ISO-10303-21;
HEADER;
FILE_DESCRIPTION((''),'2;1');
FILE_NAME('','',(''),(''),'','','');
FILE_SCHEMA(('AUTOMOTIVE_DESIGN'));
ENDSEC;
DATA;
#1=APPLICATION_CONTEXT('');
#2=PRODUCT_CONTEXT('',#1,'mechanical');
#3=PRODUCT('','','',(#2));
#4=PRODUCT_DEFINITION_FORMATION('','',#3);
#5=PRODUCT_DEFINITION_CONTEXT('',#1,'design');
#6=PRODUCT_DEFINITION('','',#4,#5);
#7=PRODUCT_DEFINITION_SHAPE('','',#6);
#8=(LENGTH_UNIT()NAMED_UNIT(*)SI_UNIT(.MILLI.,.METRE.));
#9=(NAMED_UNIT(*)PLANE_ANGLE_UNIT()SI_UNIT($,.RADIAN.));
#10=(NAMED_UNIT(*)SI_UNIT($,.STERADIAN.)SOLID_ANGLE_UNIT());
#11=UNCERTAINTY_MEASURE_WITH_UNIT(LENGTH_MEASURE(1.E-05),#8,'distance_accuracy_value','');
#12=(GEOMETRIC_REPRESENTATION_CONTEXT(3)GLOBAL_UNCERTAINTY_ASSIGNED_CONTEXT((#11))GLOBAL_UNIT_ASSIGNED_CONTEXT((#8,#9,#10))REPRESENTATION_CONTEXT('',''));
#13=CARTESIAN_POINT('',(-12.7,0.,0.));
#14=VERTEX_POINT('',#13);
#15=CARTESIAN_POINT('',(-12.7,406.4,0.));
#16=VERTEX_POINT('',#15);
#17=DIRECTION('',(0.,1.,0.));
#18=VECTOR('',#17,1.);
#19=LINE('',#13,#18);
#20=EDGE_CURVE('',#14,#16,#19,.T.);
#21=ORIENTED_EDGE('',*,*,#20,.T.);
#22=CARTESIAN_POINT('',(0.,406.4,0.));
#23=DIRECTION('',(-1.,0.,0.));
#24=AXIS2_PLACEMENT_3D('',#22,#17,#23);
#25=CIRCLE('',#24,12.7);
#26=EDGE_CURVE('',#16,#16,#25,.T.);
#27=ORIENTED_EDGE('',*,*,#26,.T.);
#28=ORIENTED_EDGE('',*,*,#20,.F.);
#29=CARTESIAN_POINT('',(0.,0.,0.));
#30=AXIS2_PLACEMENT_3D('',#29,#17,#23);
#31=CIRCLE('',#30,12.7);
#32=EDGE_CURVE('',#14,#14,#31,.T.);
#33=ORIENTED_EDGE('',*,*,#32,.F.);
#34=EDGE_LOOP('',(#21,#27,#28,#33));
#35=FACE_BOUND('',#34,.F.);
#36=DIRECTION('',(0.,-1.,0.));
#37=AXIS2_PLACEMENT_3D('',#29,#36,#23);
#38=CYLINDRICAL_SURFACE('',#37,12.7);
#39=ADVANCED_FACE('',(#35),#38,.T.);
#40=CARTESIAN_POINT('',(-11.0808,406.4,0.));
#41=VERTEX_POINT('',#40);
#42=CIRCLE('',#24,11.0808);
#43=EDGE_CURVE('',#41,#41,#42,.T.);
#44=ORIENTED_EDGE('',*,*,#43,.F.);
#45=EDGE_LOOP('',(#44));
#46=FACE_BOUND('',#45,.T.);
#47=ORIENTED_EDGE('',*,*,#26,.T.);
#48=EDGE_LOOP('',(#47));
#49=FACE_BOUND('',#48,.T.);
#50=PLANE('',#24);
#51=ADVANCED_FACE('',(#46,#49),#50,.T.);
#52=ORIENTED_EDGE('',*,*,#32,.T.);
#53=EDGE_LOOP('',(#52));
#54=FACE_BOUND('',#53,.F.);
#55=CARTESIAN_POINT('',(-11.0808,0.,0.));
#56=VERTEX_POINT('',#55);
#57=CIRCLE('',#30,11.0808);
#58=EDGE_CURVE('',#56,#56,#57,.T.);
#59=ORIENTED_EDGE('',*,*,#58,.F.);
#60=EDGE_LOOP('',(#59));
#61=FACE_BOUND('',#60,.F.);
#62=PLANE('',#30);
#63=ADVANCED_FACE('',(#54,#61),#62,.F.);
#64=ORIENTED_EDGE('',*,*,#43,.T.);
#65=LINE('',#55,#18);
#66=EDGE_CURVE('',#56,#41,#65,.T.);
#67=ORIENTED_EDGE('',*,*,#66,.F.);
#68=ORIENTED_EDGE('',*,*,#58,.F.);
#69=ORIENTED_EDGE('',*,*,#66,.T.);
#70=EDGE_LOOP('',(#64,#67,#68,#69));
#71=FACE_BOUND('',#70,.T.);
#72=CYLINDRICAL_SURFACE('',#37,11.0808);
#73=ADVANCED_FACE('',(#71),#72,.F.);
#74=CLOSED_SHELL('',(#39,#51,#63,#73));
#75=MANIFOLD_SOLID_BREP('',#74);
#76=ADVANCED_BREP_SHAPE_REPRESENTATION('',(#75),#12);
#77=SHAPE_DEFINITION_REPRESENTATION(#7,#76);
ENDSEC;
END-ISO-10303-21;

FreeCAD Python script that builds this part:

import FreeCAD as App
import Part
import Sketcher
from FreeCAD import Vector
Q = App.Units.Quantity

doc = App.newDocument("Part")
params = doc.addObject("Spreadsheet::Sheet", "Params")
for row, (alias, value) in enumerate([
    ("sketch1_diameter", "1 in"),
    ("pad1_length", "16 in"),
], start=1):
    params.set(f"A{row}", alias)
    params.set(f"B{row}", "=" + value)
    params.setAlias(f"B{row}", alias)

body = doc.addObject("PartDesign::Body", "Body")

sketch1 = doc.addObject("Sketcher::SketchObject", "Sketch")
body.addObject(sketch1)
sketch1.AttachmentSupport = (doc.XZ_Plane, [""])
sketch1.MapMode = "FlatFace"
sketch1.addGeometry([
    Part.Circle(Vector(0, 0, 0), Vector(0, 0, 1), 13),
    Part.Circle(Vector(0, 0, 0), Vector(0, 0, 1), 11),
], False)
sketch1.addConstraint([
    Sketcher.Constraint("Coincident", 0, 3, -1, 1),
    Sketcher.Constraint("Coincident", 1, 3, -1, 1),
    Sketcher.Constraint("Diameter", 0, Q("1 in")),
    Sketcher.Constraint("Diameter", 1, Q("0.8725 in")),
])
sketch1.setExpression("Constraints[2]", "Params.sketch1_diameter")
pad1 = doc.addObject("PartDesign::Pad", "Pad")
body.addObject(pad1)
pad1.Profile = sketch1
pad1.setExpression("Length", "Params.pad1_length")
pad1.Reversed = True

doc.recompute()
